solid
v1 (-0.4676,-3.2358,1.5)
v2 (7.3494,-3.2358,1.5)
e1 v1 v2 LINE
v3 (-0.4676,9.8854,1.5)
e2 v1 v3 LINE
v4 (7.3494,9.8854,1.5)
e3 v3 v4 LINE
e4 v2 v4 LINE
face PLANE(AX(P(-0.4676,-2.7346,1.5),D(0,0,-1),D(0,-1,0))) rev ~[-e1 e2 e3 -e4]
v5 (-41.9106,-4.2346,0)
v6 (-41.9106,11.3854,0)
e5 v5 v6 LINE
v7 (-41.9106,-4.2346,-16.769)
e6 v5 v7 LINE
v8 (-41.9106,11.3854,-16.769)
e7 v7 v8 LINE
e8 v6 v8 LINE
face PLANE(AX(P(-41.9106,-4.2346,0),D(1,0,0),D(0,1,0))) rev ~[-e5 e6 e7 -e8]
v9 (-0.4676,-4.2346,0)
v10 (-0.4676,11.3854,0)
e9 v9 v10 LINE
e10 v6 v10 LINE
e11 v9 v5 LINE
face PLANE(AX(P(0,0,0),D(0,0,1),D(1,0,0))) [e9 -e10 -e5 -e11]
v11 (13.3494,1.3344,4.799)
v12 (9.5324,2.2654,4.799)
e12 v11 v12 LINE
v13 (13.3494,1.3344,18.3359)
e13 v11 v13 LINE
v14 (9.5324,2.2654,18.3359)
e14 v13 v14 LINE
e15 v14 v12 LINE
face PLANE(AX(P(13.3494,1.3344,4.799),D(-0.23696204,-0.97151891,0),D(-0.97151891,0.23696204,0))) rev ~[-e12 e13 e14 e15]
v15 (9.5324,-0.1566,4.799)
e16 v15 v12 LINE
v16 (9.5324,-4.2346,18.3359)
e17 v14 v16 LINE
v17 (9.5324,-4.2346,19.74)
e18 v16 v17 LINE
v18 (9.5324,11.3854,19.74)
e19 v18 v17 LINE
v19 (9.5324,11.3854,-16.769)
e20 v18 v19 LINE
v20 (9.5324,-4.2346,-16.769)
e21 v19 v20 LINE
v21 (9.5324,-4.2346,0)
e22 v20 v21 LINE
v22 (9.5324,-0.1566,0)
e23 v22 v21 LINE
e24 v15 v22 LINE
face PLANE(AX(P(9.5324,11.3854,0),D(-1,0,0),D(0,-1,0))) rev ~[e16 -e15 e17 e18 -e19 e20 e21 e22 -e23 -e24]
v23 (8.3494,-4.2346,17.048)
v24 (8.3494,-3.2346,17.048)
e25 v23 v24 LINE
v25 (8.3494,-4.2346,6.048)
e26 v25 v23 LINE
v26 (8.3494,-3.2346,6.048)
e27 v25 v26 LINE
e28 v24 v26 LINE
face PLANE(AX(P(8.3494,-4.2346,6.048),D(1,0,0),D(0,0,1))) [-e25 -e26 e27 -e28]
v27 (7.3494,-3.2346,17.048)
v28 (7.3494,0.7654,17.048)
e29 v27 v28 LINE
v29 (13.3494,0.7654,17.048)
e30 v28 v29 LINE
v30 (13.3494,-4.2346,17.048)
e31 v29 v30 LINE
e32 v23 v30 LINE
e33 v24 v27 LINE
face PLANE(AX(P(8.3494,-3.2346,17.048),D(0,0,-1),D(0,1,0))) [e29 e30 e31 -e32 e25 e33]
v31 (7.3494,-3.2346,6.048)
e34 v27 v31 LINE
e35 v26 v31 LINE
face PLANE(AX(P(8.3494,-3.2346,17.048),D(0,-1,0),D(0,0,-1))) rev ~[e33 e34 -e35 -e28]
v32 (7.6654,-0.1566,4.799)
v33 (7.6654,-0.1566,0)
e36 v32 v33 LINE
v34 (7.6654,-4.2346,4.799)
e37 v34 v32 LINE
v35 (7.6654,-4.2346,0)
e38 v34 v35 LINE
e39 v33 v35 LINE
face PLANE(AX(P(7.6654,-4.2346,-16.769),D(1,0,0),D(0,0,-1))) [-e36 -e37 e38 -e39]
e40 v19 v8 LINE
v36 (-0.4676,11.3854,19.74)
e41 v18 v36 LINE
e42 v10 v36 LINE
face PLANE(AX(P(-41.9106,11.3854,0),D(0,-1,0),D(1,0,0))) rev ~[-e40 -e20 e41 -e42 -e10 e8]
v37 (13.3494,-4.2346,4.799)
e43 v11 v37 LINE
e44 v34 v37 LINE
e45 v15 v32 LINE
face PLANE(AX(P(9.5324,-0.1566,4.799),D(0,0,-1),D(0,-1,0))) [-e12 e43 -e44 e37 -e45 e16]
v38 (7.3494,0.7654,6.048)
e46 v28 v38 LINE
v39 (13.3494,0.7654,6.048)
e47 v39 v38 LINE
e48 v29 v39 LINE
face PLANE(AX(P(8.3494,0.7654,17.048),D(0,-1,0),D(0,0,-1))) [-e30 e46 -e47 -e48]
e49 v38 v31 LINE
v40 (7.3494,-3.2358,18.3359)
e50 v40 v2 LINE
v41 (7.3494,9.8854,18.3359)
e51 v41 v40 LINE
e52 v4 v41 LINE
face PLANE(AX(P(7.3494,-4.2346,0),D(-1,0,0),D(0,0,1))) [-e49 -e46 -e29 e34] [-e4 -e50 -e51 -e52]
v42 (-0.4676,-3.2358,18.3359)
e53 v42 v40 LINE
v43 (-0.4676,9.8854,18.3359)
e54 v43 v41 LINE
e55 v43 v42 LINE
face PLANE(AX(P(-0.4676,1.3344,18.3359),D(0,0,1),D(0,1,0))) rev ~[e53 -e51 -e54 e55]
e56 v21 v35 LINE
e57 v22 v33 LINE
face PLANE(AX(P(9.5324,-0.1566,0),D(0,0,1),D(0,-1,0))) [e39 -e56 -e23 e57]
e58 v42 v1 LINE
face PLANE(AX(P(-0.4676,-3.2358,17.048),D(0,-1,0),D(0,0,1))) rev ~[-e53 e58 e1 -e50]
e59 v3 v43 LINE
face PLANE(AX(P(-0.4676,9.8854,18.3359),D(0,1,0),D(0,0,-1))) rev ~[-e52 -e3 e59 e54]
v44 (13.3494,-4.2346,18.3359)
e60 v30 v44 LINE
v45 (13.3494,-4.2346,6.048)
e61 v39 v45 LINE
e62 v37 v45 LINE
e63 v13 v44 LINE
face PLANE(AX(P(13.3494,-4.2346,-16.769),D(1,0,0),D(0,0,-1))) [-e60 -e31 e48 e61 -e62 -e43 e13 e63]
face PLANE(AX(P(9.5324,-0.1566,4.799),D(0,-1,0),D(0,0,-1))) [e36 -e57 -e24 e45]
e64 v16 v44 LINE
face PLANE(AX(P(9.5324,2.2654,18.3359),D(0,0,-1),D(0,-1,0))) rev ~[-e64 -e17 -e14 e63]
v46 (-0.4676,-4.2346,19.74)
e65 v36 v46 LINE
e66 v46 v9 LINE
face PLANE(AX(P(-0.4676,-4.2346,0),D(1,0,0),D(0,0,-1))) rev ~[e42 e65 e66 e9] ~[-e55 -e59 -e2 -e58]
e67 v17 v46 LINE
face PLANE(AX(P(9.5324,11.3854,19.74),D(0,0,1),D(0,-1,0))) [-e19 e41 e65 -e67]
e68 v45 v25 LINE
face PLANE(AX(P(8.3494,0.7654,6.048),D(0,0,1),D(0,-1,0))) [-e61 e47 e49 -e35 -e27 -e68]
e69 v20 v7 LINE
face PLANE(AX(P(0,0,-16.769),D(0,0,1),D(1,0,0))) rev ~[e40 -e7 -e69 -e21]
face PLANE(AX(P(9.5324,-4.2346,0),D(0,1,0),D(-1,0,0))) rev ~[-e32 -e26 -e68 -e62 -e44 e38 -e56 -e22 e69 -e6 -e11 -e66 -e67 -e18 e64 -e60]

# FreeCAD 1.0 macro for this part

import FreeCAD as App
import Part
import Sketcher
from FreeCAD import Vector
Q = App.Units.Quantity

doc = App.newDocument("Part")
body = doc.addObject("PartDesign::Body", "Body")

sketch1 = body.newObject("Sketcher::SketchObject", "Sketch")
sketch1.AttachmentSupport = (doc.getObject("XY_Plane"), [""])
sketch1.MapMode = "FlatFace"
sketch1.addGeometry([
    Part.LineSegment(Vector(10, 11, 0), Vector(-42, 11, 0)),
    Part.LineSegment(Vector(-42, 11, 0), Vector(-42, -4, 0)),
    Part.LineSegment(Vector(-42, -4, 0), Vector(10, -4, 0)),
    Part.LineSegment(Vector(10, -4, 0), Vector(10, 11, 0)),
], False)
sketch1.addConstraint([
    Sketcher.Constraint("Coincident", 0, 2, 1, 1),
    Sketcher.Constraint("Coincident", 1, 2, 2, 1),
    Sketcher.Constraint("Coincident", 2, 2, 3, 1),
    Sketcher.Constraint("Coincident", 3, 2, 0, 1),
    Sketcher.Constraint("Horizontal", 0),
    Sketcher.Constraint("Vertical", 1),
    Sketcher.Constraint("Horizontal", 2),
    Sketcher.Constraint("Vertical", 3),
    Sketcher.Constraint("DistanceY", 1, 2, 1, 1, Q("15.62 mm")),
    Sketcher.Constraint("DistanceX", 0, 2, 0, 1, Q("51.443 mm")),
    Sketcher.Constraint("DistanceX", 0, 2, -1, 1, Q("41.9106 mm")),
    Sketcher.Constraint("DistanceY", -1, 1, 0, 2, Q("11.3854 mm")),
])
pad1 = body.newObject("PartDesign::Pad", "Pad")
pad1.Profile = sketch1
pad1.Length = 16.769
pad1.Reversed = True

sketch2 = body.newObject("Sketcher::SketchObject", "Sketch001")
sketch2.AttachmentSupport = (doc.getObject("YZ_Plane"), [""])
sketch2.MapMode = "FlatFace"
sketch2.AttachmentOffset = App.Placement(Vector(0, 0, 9.5324), App.Rotation())
sketch2.addGeometry([
    Part.LineSegment(Vector(11, -17, 0), Vector(11, 20, 0)),
    Part.LineSegment(Vector(11, 20, 0), Vector(-4, 20, 0)),
    Part.LineSegment(Vector(-4, 20, 0), Vector(-4, -17, 0)),
    Part.LineSegment(Vector(-4, -17, 0), Vector(11, -17, 0)),
], False)
sketch2.addConstraint([
    Sketcher.Constraint("Coincident", 0, 2, 1, 1),
    Sketcher.Constraint("Coincident", 1, 2, 2, 1),
    Sketcher.Constraint("Coincident", 2, 2, 3, 1),
    Sketcher.Constraint("Coincident", 3, 2, 0, 1),
    Sketcher.Constraint("Vertical", 0),
    Sketcher.Constraint("Horizontal", 1),
    Sketcher.Constraint("Vertical", 2),
    Sketcher.Constraint("Horizontal", 3),
    Sketcher.Constraint("DistanceY", 0, 1, 0, 2, Q("36.509 mm")),
    Sketcher.Constraint("DistanceX", 1, 2, 1, 1, Q("15.62 mm")),
    Sketcher.Constraint("DistanceY", -1, 1, 0, 2, Q("19.74 mm")),
    Sketcher.Constraint("DistanceX", -1, 1, 0, 2, Q("11.3854 mm")),
])
pad2 = body.newObject("PartDesign::Pad", "Pad001")
pad2.Profile = sketch2
pad2.Length = 10
pad2.Reversed = True

sketch3 = body.newObject("Sketcher::SketchObject", "Sketch002")
sketch3.AttachmentSupport = (doc.getObject("YZ_Plane"), [""])
sketch3.MapMode = "FlatFace"
sketch3.AttachmentOffset = App.Placement(Vector(0, 0, 9.5324), App.Rotation())
sketch3.addGeometry([
    Part.LineSegment(Vector(-0.2, 4.8, 0), Vector(-4.2, 4.8, 0)),
    Part.LineSegment(Vector(-4.2, 4.8, 0), Vector(-4.2, 0, 0)),
    Part.LineSegment(Vector(-4.2, 0, 0), Vector(-0.2, 0, 0)),
    Part.LineSegment(Vector(-0.2, 0, 0), Vector(-0.2, 4.8, 0)),
], False)
sketch3.addConstraint([
    Sketcher.Constraint("Coincident", 0, 2, 1, 1),
    Sketcher.Constraint("Coincident", 1, 2, 2, 1),
    Sketcher.Constraint("Coincident", 2, 2, 3, 1),
    Sketcher.Constraint("Coincident", 3, 2, 0, 1),
    Sketcher.Constraint("Horizontal", 0),
    Sketcher.Constraint("Vertical", 1),
    Sketcher.Constraint("Horizontal", 2),
    Sketcher.Constraint("Vertical", 3),
    Sketcher.Constraint("PointOnObject", 1, 2, -1),
    Sketcher.Constraint("DistanceX", 0, 2, 0, 1, Q("4.078 mm")),
    Sketcher.Constraint("DistanceY", 1, 2, 1, 1, Q("4.799 mm")),
    Sketcher.Constraint("DistanceX", 0, 2, -1, 1, Q("4.2346 mm")),
])
pocket1 = body.newObject("PartDesign::Pocket", "Pocket")
pocket1.Profile = sketch3
pocket1.Length = 1.867

sketch4 = body.newObject("Sketcher::SketchObject", "Sketch003")
sketch4.AttachmentSupport = (doc.getObject("YZ_Plane"), [""])
sketch4.MapMode = "FlatFace"
sketch4.AttachmentOffset = App.Placement(Vector(0, 0, -0.4676), App.Rotation())
sketch4.addGeometry([
    Part.LineSegment(Vector(-3, 2, 0), Vector(-3, 18, 0)),
    Part.LineSegment(Vector(-3, 18, 0), Vector(10, 18, 0)),
    Part.LineSegment(Vector(10, 18, 0), Vector(10, 2, 0)),
    Part.LineSegment(Vector(10, 2, 0), Vector(-3, 2, 0)),
], False)
sketch4.addConstraint([
    Sketcher.Constraint("Coincident", 0, 2, 1, 1),
    Sketcher.Constraint("Coincident", 1, 2, 2, 1),
    Sketcher.Constraint("Coincident", 2, 2, 3, 1),
    Sketcher.Constraint("Coincident", 3, 2, 0, 1),
    Sketcher.Constraint("Vertical", 0),
    Sketcher.Constraint("Horizontal", 1),
    Sketcher.Constraint("Vertical", 2),
    Sketcher.Constraint("Horizontal", 3),
    Sketcher.Constraint("DistanceX", 1, 1, 1, 2, Q("12.62 mm")),
    Sketcher.Constraint("DistanceY", 0, 1, 0, 2, Q("16.74 mm")),
    Sketcher.Constraint("DistanceY", -1, 1, 2, 2, Q("1.5 mm")),
    Sketcher.Constraint("DistanceX", 0, 2, -1, 1, Q("2.7346 mm")),
])
pocket2 = body.newObject("PartDesign::Pocket", "Pocket001")
pocket2.Profile = sketch4
pocket2.Length = 7.5
pocket2.Reversed = True

sketch5 = body.newObject("Sketcher::SketchObject", "Sketch004")
sketch5.AttachmentSupport = (doc.getObject("YZ_Plane"), [""])
sketch5.MapMode = "FlatFace"
sketch5.AttachmentOffset = App.Placement(Vector(0, 0, 9.5324), App.Rotation())
sketch5.addGeometry([
    Part.LineSegment(Vector(-4.2, 4.8, 0), Vector(2.3, 4.8, 0)),
    Part.LineSegment(Vector(2.3, 4.8, 0), Vector(2.3, 18.3, 0)),
    Part.LineSegment(Vector(2.3, 18.3, 0), Vector(-4.2, 18.3, 0)),
    Part.LineSegment(Vector(-4.2, 18.3, 0), Vector(-4.2, 17, 0)),
    Part.LineSegment(Vector(-4.2, 17, 0), Vector(0.8, 17, 0)),
    Part.LineSegment(Vector(0.8, 17, 0), Vector(0.8, 6, 0)),
    Part.LineSegment(Vector(0.8, 6, 0), Vector(-4.2, 6, 0)),
    Part.LineSegment(Vector(-4.2, 6, 0), Vector(-4.2, 4.8, 0)),
], False)
sketch5.addConstraint([
    Sketcher.Constraint("Coincident", 0, 2, 1, 1),
    Sketcher.Constraint("Coincident", 1, 2, 2, 1),
    Sketcher.Constraint("Coincident", 2, 2, 3, 1),
    Sketcher.Constraint("Coincident", 3, 2, 4, 1),
    Sketcher.Constraint("Coincident", 4, 2, 5, 1),
    Sketcher.Constraint("Coincident", 5, 2, 6, 1),
    Sketcher.Constraint("Coincident", 6, 2, 7, 1),
    Sketcher.Constraint("Coincident", 7, 2, 0, 1),
    Sketcher.Constraint("Horizontal", 0),
    Sketcher.Constraint("Vertical", 1),
    Sketcher.Constraint("Horizontal", 2),
    Sketcher.Constraint("Vertical", 3),
    Sketcher.Constraint("Horizontal", 4),
    Sketcher.Constraint("Vertical", 5),
    Sketcher.Constraint("Horizontal", 6),
    Sketcher.Constraint("Vertical", 7),
    Sketcher.Constraint("Vertical", 3, 2, 6, 2),
    Sketcher.Constraint("DistanceX", 4, 1, 4, 2, Q("5 mm")),
    Sketcher.Constraint("DistanceY", 5, 2, 5, 1, Q("11 mm")),
    Sketcher.Constraint("DistanceX", 0, 1, 0, 2, Q("6.5 mm")),
    Sketcher.Constraint("DistanceY", 1, 1, 1, 2, Q("13.537 mm")),
    Sketcher.Constraint("DistanceY", 3, 2, 3, 1, Q("1.288 mm")),
    Sketcher.Constraint("DistanceY", -1, 1, 0, 2, Q("4.799 mm")),
    Sketcher.Constraint("DistanceX", -1, 1, 0, 2, Q("2.2654 mm")),
])
pad3 = body.newObject("PartDesign::Pad", "Pad002")
pad3.Profile = sketch5
pad3.Length = 3.817

sketch6 = body.newObject("Sketcher::SketchObject", "Sketch005")
sketch6.AttachmentSupport = (doc.getObject("XY_Plane"), [""])
sketch6.MapMode = "FlatFace"
sketch6.AttachmentOffset = App.Placement(Vector(0, 0, 4.799), App.Rotation())
sketch6.addGeometry([
    Part.LineSegment(Vector(13.3, 2.3, 0), Vector(13.3, 1.3, 0)),
    Part.LineSegment(Vector(13.3, 1.3, 0), Vector(9.5, 2.3, 0)),
    Part.LineSegment(Vector(9.5, 2.3, 0), Vector(13.3, 2.3, 0)),
], False)
sketch6.addConstraint([
    Sketcher.Constraint("Coincident", 0, 2, 1, 1),
    Sketcher.Constraint("Coincident", 1, 2, 2, 1),
    Sketcher.Constraint("Coincident", 2, 2, 0, 1),
    Sketcher.Constraint("Vertical", 0),
    Sketcher.Constraint("Horizontal", 2),
    Sketcher.Constraint("DistanceX", 2, 1, 2, 2, Q("3.817 mm")),
    Sketcher.Constraint("DistanceY", 0, 2, 0, 1, Q("0.931 mm")),
    Sketcher.Constraint("DistanceX", -1, 1, 0, 2, Q("13.3494 mm")),
    Sketcher.Constraint("DistanceY", -1, 1, 0, 2, Q("1.3344 mm")),
])
pocket3 = body.newObject("PartDesign::Pocket", "Pocket002")
pocket3.Profile = sketch6
pocket3.Length = 13.54
pocket3.Reversed = True

sketch7 = body.newObject("Sketcher::SketchObject", "Sketch006")
sketch7.AttachmentSupport = (doc.getObject("XZ_Plane"), [""])
sketch7.MapMode = "FlatFace"
sketch7.AttachmentOffset = App.Placement(Vector(0, 0, 4.2346), App.Rotation())
sketch7.addGeometry([
    Part.LineSegment(Vector(13, 17, 0), Vector(8, 17, 0)),
    Part.LineSegment(Vector(8, 17, 0), Vector(8, 6, 0)),
    Part.LineSegment(Vector(8, 6, 0), Vector(13, 6, 0)),
    Part.LineSegment(Vector(13, 6, 0), Vector(13, 17, 0)),
], False)
sketch7.addConstraint([
    Sketcher.Constraint("Coincident", 0, 2, 1, 1),
    Sketcher.Constraint("Coincident", 1, 2, 2, 1),
    Sketcher.Constraint("Coincident", 2, 2, 3, 1),
    Sketcher.Constraint("Coincident", 3, 2, 0, 1),
    Sketcher.Constraint("Horizontal", 0),
    Sketcher.Constraint("Vertical", 1),
    Sketcher.Constraint("Horizontal", 2),
    Sketcher.Constraint("Vertical", 3),
    Sketcher.Constraint("DistanceX", 0, 2, 0, 1, Q("5 mm")),
    Sketcher.Constraint("DistanceY", 1, 2, 1, 1, Q("11 mm")),
    Sketcher.Constraint("DistanceY", -1, 1, 0, 2, Q("17.048 mm")),
    Sketcher.Constraint("DistanceX", -1, 1, 0, 2, Q("8.3494 mm")),
])
pocket4 = body.newObject("PartDesign::Pocket", "Pocket003")
pocket4.Profile = sketch7
pocket4.Length = 5

sketch8 = body.newObject("Sketcher::SketchObject", "Sketch007")
sketch8.AttachmentSupport = (doc.getObject("YZ_Plane"), [""])
sketch8.MapMode = "FlatFace"
sketch8.AttachmentOffset = App.Placement(Vector(0, 0, 8.3494), App.Rotation())
sketch8.addGeometry([
    Part.LineSegment(Vector(0.8, 17, 0), Vector(-3.2, 17, 0)),
    Part.LineSegment(Vector(-3.2, 17, 0), Vector(-3.2, 6, 0)),
    Part.LineSegment(Vector(-3.2, 6, 0), Vector(0.8, 6, 0)),
    Part.LineSegment(Vector(0.8, 6, 0), Vector(0.8, 17, 0)),
], False)
sketch8.addConstraint([
    Sketcher.Constraint("Coincident", 0, 2, 1, 1),
    Sketcher.Constraint("Coincident", 1, 2, 2, 1),
    Sketcher.Constraint("Coincident", 2, 2, 3, 1),
    Sketcher.Constraint("Coincident", 3, 2, 0, 1),
    Sketcher.Constraint("Horizontal", 0),
    Sketcher.Constraint("Vertical", 1),
    Sketcher.Constraint("Horizontal", 2),
    Sketcher.Constraint("Vertical", 3),
    Sketcher.Constraint("DistanceX", 0, 2, 0, 1, Q("4 mm")),
    Sketcher.Constraint("DistanceY", 1, 2, 1, 1, Q("11 mm")),
    Sketcher.Constraint("DistanceY", -1, 1, 0, 2, Q("17.048 mm")),
    Sketcher.Constraint("DistanceX", 0, 2, -1, 1, Q("3.2346 mm")),
])
pocket5 = body.newObject("PartDesign::Pocket", "Pocket004")
pocket5.Profile = sketch8
pocket5.Length = 10

sketch9 = body.newObject("Sketcher::SketchObject", "Sketch008")
sketch9.AttachmentSupport = (doc.getObject("YZ_Plane"), [""])
sketch9.MapMode = "FlatFace"
sketch9.AttachmentOffset = App.Placement(Vector(0, 0, -0.4676), App.Rotation())
sketch9.addGeometry([
    Part.LineSegment(Vector(-3, 18, 0), Vector(10, 18, 0)),
    Part.LineSegment(Vector(10, 18, 0), Vector(10, 2, 0)),
    Part.LineSegment(Vector(10, 2, 0), Vector(-3, 2, 0)),
    Part.LineSegment(Vector(-3, 2, 0), Vector(-3, 18, 0)),
], False)
sketch9.addConstraint([
    Sketcher.Constraint("Coincident", 0, 2, 1, 1),
    Sketcher.Constraint("Coincident", 1, 2, 2, 1),
    Sketcher.Constraint("Coincident", 2, 2, 3, 1),
    Sketcher.Constraint("Coincident", 3, 2, 0, 1),
    Sketcher.Constraint("Horizontal", 0),
    Sketcher.Constraint("Vertical", 1),
    Sketcher.Constraint("Horizontal", 2),
    Sketcher.Constraint("Vertical", 3),
    Sketcher.Constraint("DistanceY", -1, 1, 1, 2, Q("1.5 mm")),
    Sketcher.Constraint("DistanceY", 1, 2, 1, 1, Q("16.836 mm")),
    Sketcher.Constraint("DistanceX", 0, 1, 0, 2, Q("13.1212 mm")),
    Sketcher.Constraint("DistanceX", -1, 1, 0, 2, Q("9.8854 mm")),
])
pocket6 = body.newObject("PartDesign::Pocket", "Pocket005")
pocket6.Profile = sketch9
pocket6.Length = 7.817
pocket6.Reversed = True

doc.recompute()
